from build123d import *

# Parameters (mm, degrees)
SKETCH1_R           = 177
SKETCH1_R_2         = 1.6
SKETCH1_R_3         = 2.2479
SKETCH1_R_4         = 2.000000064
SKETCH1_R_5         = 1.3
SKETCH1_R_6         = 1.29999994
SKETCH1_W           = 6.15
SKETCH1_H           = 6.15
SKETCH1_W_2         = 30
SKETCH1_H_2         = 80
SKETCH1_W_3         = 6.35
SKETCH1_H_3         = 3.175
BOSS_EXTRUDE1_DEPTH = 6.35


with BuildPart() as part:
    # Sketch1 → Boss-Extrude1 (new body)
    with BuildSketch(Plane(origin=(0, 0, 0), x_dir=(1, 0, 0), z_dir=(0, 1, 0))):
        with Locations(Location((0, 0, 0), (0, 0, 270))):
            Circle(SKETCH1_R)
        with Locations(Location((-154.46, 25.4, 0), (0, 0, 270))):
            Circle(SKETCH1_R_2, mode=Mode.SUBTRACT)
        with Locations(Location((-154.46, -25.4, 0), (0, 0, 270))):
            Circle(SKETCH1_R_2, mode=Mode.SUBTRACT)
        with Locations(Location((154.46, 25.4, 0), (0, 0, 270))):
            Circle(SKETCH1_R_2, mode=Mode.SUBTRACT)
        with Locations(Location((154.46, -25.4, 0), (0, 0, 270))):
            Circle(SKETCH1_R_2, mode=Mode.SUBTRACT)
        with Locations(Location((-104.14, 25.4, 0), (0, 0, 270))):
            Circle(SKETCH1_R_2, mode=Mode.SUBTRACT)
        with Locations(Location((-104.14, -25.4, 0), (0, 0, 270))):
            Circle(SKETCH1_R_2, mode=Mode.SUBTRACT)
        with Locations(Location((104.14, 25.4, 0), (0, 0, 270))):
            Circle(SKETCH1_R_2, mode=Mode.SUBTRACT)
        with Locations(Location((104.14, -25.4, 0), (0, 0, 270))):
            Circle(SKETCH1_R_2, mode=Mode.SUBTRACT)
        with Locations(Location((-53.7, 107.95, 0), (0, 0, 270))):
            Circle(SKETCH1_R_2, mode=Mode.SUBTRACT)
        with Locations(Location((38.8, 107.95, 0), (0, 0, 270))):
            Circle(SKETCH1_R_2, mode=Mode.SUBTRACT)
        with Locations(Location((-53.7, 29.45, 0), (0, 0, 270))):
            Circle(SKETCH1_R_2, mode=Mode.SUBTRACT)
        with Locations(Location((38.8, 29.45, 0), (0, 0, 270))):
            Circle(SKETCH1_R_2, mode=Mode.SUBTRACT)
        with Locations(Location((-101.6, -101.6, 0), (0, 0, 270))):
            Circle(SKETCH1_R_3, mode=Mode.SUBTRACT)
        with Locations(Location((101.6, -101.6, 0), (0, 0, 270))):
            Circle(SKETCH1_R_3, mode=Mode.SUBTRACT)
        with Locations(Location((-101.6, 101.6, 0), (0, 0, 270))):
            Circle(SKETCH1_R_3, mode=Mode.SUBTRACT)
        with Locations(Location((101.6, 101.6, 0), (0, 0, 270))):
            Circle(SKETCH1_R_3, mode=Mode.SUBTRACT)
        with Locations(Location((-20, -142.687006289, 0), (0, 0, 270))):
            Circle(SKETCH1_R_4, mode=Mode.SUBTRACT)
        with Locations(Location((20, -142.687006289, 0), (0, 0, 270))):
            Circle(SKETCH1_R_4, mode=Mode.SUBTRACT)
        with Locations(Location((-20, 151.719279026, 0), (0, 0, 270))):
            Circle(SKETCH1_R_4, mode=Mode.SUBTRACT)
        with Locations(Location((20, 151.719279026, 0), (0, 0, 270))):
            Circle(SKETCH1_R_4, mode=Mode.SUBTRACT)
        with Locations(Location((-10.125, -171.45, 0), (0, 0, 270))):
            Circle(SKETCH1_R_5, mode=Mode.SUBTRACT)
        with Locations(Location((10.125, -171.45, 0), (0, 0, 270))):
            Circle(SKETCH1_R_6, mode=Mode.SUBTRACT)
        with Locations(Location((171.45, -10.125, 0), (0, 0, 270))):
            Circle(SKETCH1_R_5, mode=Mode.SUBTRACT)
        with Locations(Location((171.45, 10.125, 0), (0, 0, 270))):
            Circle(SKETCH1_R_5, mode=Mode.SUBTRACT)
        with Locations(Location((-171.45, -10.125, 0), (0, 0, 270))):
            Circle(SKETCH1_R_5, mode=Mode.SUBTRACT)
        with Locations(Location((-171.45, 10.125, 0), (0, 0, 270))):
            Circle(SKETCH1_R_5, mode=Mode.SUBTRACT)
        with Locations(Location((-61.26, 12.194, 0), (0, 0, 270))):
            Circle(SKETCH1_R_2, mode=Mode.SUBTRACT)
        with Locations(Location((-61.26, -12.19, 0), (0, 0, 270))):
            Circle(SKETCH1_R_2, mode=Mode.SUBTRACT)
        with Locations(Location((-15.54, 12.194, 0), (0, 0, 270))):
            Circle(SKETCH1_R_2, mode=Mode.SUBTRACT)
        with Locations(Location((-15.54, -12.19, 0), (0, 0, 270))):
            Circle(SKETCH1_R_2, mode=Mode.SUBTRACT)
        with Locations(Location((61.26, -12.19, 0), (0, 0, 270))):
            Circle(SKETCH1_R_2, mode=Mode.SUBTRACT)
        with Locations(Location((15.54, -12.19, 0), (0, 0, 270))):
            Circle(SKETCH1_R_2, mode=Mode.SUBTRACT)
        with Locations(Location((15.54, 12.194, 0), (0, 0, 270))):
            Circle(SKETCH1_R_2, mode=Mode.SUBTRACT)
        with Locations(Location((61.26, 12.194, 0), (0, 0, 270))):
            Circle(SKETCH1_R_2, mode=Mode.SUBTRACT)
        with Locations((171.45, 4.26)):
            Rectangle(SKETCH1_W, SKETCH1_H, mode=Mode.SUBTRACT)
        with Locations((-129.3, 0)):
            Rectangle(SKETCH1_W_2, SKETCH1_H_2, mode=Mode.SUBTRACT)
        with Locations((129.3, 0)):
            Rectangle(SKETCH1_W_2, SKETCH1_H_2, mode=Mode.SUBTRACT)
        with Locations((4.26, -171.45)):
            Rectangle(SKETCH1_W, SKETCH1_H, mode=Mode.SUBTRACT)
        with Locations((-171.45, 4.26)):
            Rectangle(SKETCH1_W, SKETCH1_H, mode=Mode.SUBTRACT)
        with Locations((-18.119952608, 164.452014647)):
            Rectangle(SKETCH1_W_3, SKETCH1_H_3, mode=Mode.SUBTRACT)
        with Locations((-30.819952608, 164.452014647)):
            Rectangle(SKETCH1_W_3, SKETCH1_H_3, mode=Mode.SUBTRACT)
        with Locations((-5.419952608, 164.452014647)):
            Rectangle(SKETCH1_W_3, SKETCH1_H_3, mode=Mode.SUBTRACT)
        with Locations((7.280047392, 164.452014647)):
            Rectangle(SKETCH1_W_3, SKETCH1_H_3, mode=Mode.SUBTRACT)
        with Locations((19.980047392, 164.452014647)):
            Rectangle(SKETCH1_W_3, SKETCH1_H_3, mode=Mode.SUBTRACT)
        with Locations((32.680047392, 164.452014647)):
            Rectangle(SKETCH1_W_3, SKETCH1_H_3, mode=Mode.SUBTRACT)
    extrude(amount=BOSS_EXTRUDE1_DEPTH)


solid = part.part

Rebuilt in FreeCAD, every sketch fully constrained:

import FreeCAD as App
import Part
import Sketcher

V = App.Vector


def add_polygon(sketch, points):
    """Adds a closed chain of lines whose ends are joined by coincident constraints."""
    first, n = sketch.GeometryCount, len(points)
    for a, b in zip(points, points[1:] + points[:1]):
        sketch.addGeometry(Part.LineSegment(App.Vector(*a, 0), App.Vector(*b, 0)), False)
    for i in range(n):
        sketch.addConstraint(Sketcher.Constraint("Coincident", first + i, 2, first + (i + 1) % n, 1))

doc = App.newDocument("Part")
body = doc.addObject("PartDesign::Body", "Body")

# Sketch on XZ plane
sketch1 = body.newObject("Sketcher::SketchObject", "Sketch")
sketch1.AttachmentSupport = (doc.getObject("XZ_Plane"), [""])
sketch1.MapMode = "FlatFace"
sketch1.addGeometry(Part.Circle(V(0, 0, 0), V(0, 0, 1), 177), False)  # 0
sketch1.addGeometry(Part.Circle(V(-101.6, -101.6, 0), V(0, 0, 1), 2.2), False)  # 1
sketch1.addGeometry(Part.Circle(V(-154.5, -25.4, 0), V(0, 0, 1), 1.6), False)  # 2
sketch1.addGeometry(Part.Circle(V(-171.4, -10.1, 0), V(0, 0, 1), 1.3), False)  # 3
add_polygon(sketch1, [(-168.4, -1.2), (-174.5, -1.2), (-174.5, -7.3), (-168.4, -7.3)])  # lines 4-7
add_polygon(sketch1, [(-114.3, 40), (-144.3, 40), (-144.3, -40), (-114.3, -40)])  # lines 8-11
sketch1.addGeometry(Part.Circle(V(-104.1, -25.4, 0), V(0, 0, 1), 1.6), False)  # 12
sketch1.addGeometry(Part.Circle(V(-53.7, -108, 0), V(0, 0, 1), 1.6), False)  # 13
add_polygon(sketch1, [(-27.6, -162.9), (-34, -162.9), (-34, -166), (-27.6, -166)])  # lines 14-17
add_polygon(sketch1, [(-14.9, -162.9), (-21.3, -162.9), (-21.3, -166), (-14.9, -166)])  # lines 18-21
sketch1.addGeometry(Part.Circle(V(-20, -151.7, 0), V(0, 0, 1), 2), False)  # 22
add_polygon(sketch1, [(-2.2, -162.9), (-8.6, -162.9), (-8.6, -166), (-2.2, -166)])  # lines 23-26
sketch1.addGeometry(Part.Circle(V(-53.7, -29.4, 0), V(0, 0, 1), 1.6), False)  # 27
sketch1.addGeometry(Part.Circle(V(-61.3, -12.2, 0), V(0, 0, 1), 1.6), False)  # 28
sketch1.addGeometry(Part.Circle(V(-15.5, -12.2, 0), V(0, 0, 1), 1.6), False)  # 29
sketch1.addGeometry(Part.Circle(V(-171.4, 10.1, 0), V(0, 0, 1), 1.3), False)  # 30
sketch1.addGeometry(Part.Circle(V(-154.5, 25.4, 0), V(0, 0, 1), 1.6), False)  # 31
sketch1.addGeometry(Part.Circle(V(-104.1, 25.4, 0), V(0, 0, 1), 1.6), False)  # 32
sketch1.addGeometry(Part.Circle(V(-101.6, 101.6, 0), V(0, 0, 1), 2.2), False)  # 33
sketch1.addGeometry(Part.Circle(V(-61.3, 12.2, 0), V(0, 0, 1), 1.6), False)  # 34
sketch1.addGeometry(Part.Circle(V(-15.5, 12.2, 0), V(0, 0, 1), 1.6), False)  # 35
sketch1.addGeometry(Part.Circle(V(-20, 142.7, 0), V(0, 0, 1), 2), False)  # 36
sketch1.addGeometry(Part.Circle(V(-10.1, 171.4, 0), V(0, 0, 1), 1.3), False)  # 37
add_polygon(sketch1, [(10.5, -162.9), (4.1, -162.9), (4.1, -166), (10.5, -166)])  # lines 38-41
add_polygon(sketch1, [(23.2, -162.9), (16.8, -162.9), (16.8, -166), (23.2, -166)])  # lines 42-45
sketch1.addGeometry(Part.Circle(V(20, -151.7, 0), V(0, 0, 1), 2), False)  # 46
add_polygon(sketch1, [(35.9, -162.9), (29.5, -162.9), (29.5, -166), (35.9, -166)])  # lines 47-50
sketch1.addGeometry(Part.Circle(V(38.8, -108, 0), V(0, 0, 1), 1.6), False)  # 51
sketch1.addGeometry(Part.Circle(V(15.5, -12.2, 0), V(0, 0, 1), 1.6), False)  # 52
sketch1.addGeometry(Part.Circle(V(38.8, -29.4, 0), V(0, 0, 1), 1.6), False)  # 53
sketch1.addGeometry(Part.Circle(V(61.3, -12.2, 0), V(0, 0, 1), 1.6), False)  # 54
sketch1.addGeometry(Part.Circle(V(101.6, -101.6, 0), V(0, 0, 1), 2.2), False)  # 55
sketch1.addGeometry(Part.Circle(V(104.1, -25.4, 0), V(0, 0, 1), 1.6), False)  # 56
add_polygon(sketch1, [(144.3, 40), (114.3, 40), (114.3, -40), (144.3, -40)])  # lines 57-60
sketch1.addGeometry(Part.Circle(V(154.5, -25.4, 0), V(0, 0, 1), 1.6), False)  # 61
sketch1.addGeometry(Part.Circle(V(171.4, -10.1, 0), V(0, 0, 1), 1.3), False)  # 62
add_polygon(sketch1, [(174.5, -1.2), (168.4, -1.2), (168.4, -7.3), (174.5, -7.3)])  # lines 63-66
sketch1.addGeometry(Part.Circle(V(15.5, 12.2, 0), V(0, 0, 1), 1.6), False)  # 67
sketch1.addGeometry(Part.Circle(V(61.3, 12.2, 0), V(0, 0, 1), 1.6), False)  # 68
sketch1.addGeometry(Part.Circle(V(20, 142.7, 0), V(0, 0, 1), 2), False)  # 69
add_polygon(sketch1, [(7.3, 174.5), (1.2, 174.5), (1.2, 168.4), (7.3, 168.4)])  # lines 70-73
sketch1.addGeometry(Part.Circle(V(10.1, 171.4, 0), V(0, 0, 1), 1.3), False)  # 74
sketch1.addGeometry(Part.Circle(V(104.1, 25.4, 0), V(0, 0, 1), 1.6), False)  # 75
sketch1.addGeometry(Part.Circle(V(154.5, 25.4, 0), V(0, 0, 1), 1.6), False)  # 76
sketch1.addGeometry(Part.Circle(V(171.4, 10.1, 0), V(0, 0, 1), 1.3), False)  # 77
sketch1.addGeometry(Part.Circle(V(101.6, 101.6, 0), V(0, 0, 1), 2.2), False)  # 78
sketch1.addConstraint([
    Sketcher.Constraint("Horizontal", 4),
    Sketcher.Constraint("Vertical", 5),
    Sketcher.Constraint("Horizontal", 6),
    Sketcher.Constraint("Vertical", 7),
    Sketcher.Constraint("Horizontal", 8),
    Sketcher.Constraint("Vertical", 9),
    Sketcher.Constraint("Horizontal", 10),
    Sketcher.Constraint("Vertical", 11),
    Sketcher.Constraint("Horizontal", 14),
    Sketcher.Constraint("Vertical", 15),
    Sketcher.Constraint("Horizontal", 16),
    Sketcher.Constraint("Vertical", 17),
    Sketcher.Constraint("Horizontal", 18),
    Sketcher.Constraint("Vertical", 19),
    Sketcher.Constraint("Horizontal", 20),
    Sketcher.Constraint("Vertical", 21),
    Sketcher.Constraint("Horizontal", 23),
    Sketcher.Constraint("Vertical", 24),
    Sketcher.Constraint("Horizontal", 25),
    Sketcher.Constraint("Vertical", 26),
    Sketcher.Constraint("Horizontal", 38),
    Sketcher.Constraint("Vertical", 39),
    Sketcher.Constraint("Horizontal", 40),
    Sketcher.Constraint("Vertical", 41),
    Sketcher.Constraint("Horizontal", 42),
    Sketcher.Constraint("Vertical", 43),
    Sketcher.Constraint("Horizontal", 44),
    Sketcher.Constraint("Vertical", 45),
    Sketcher.Constraint("Horizontal", 47),
    Sketcher.Constraint("Vertical", 48),
    Sketcher.Constraint("Horizontal", 49),
    Sketcher.Constraint("Vertical", 50),
    Sketcher.Constraint("Horizontal", 57),
    Sketcher.Constraint("Vertical", 58),
    Sketcher.Constraint("Horizontal", 59),
    Sketcher.Constraint("Vertical", 60),
    Sketcher.Constraint("Horizontal", 63),
    Sketcher.Constraint("Vertical", 64),
    Sketcher.Constraint("Horizontal", 65),
    Sketcher.Constraint("Vertical", 66),
    Sketcher.Constraint("Horizontal", 70),
    Sketcher.Constraint("Vertical", 71),
    Sketcher.Constraint("Horizontal", 72),
    Sketcher.Constraint("Vertical", 73),
    Sketcher.Constraint("Coincident", 0, 3, -1, 1),
    Sketcher.Constraint("Equal", 2, 12),
    Sketcher.Constraint("Equal", 12, 13),
    Sketcher.Constraint("Equal", 13, 27),
    Sketcher.Constraint("Equal", 27, 28),
    Sketcher.Constraint("Equal", 28, 29),
    Sketcher.Constraint("Equal", 3, 30),
    Sketcher.Constraint("Equal", 29, 31),
    Sketcher.Constraint("Equal", 31, 32),
    Sketcher.Constraint("Equal", 1, 33),
    Sketcher.Constraint("Equal", 32, 34),
    Sketcher.Constraint("Equal", 34, 35),
    Sketcher.Constraint("Equal", 22, 36),
    Sketcher.Constraint("Equal", 30, 37),
    Sketcher.Constraint("Equal", 36, 46),
    Sketcher.Constraint("Equal", 35, 51),
    Sketcher.Constraint("Equal", 51, 52),
    Sketcher.Constraint("Equal", 52, 53),
    Sketcher.Constraint("Equal", 53, 54),
    Sketcher.Constraint("Equal", 33, 55),
    Sketcher.Constraint("Equal", 54, 56),
    Sketcher.Constraint("Equal", 56, 61),
    Sketcher.Constraint("Equal", 37, 62),
    Sketcher.Constraint("Equal", 61, 67),
    Sketcher.Constraint("Equal", 67, 68),
    Sketcher.Constraint("Equal", 46, 69),
    Sketcher.Constraint("Equal", 62, 74),
    Sketcher.Constraint("Equal", 68, 75),
    Sketcher.Constraint("Equal", 75, 76),
    Sketcher.Constraint("Equal", 74, 77),
    Sketcher.Constraint("Equal", 55, 78),
    Sketcher.Constraint("Symmetric", 33, 3, 55, 3, -1, 1),
    Sketcher.Constraint("Symmetric", 32, 3, 56, 3, -1, 1),
    Sketcher.Constraint("Symmetric", 31, 3, 61, 3, -1, 1),
    Sketcher.Constraint("Symmetric", 30, 3, 62, 3, -1, 1),
    Sketcher.Constraint("Symmetric", 12, 3, 75, 3, -1, 1),
    Sketcher.Constraint("Symmetric", 2, 3, 76, 3, -1, 1),
    Sketcher.Constraint("Symmetric", 3, 3, 77, 3, -1, 1),
    Sketcher.Constraint("Symmetric", 1, 3, 78, 3, -1, 1),
    Sketcher.Constraint("Symmetric", 10, 2, 57, 2, -1, 1),
    Sketcher.Constraint("Symmetric", 8, 2, 59, 2, -1, 1),
    Sketcher.Constraint("Symmetric", 22, 3, 46, 3, -2),
    Sketcher.Constraint("Symmetric", 29, 3, 52, 3, -2),
    Sketcher.Constraint("Symmetric", 28, 3, 54, 3, -2),
    Sketcher.Constraint("Symmetric", 1, 3, 55, 3, -2),
    Sketcher.Constraint("Symmetric", 12, 3, 56, 3, -2),
    Sketcher.Constraint("Symmetric", 2, 3, 61, 3, -2),
    Sketcher.Constraint("Symmetric", 3, 3, 62, 3, -2),
    Sketcher.Constraint("Symmetric", 35, 3, 67, 3, -2),
    Sketcher.Constraint("Symmetric", 34, 3, 68, 3, -2),
    Sketcher.Constraint("Symmetric", 36, 3, 69, 3, -2),
    Sketcher.Constraint("Symmetric", 37, 3, 74, 3, -2),
    Sketcher.Constraint("Symmetric", 7, 2, 63, 2, -2),
    Sketcher.Constraint("Symmetric", 5, 2, 65, 2, -2),
    Sketcher.Constraint("Horizontal", 2, 3, 12, 3),
    Sketcher.Constraint("Horizontal", 28, 3, 29, 3),
    Sketcher.Constraint("Horizontal", 34, 3, 35, 3),
    Sketcher.Constraint("Horizontal", 13, 3, 51, 3),
    Sketcher.Constraint("Horizontal", 27, 3, 53, 3),
    Sketcher.Constraint("Horizontal", 17, 2, 18, 2),
    Sketcher.Constraint("Horizontal", 16, 2, 19, 2),
    Sketcher.Constraint("Horizontal", 21, 2, 23, 2),
    Sketcher.Constraint("Horizontal", 20, 2, 24, 2),
    Sketcher.Constraint("Horizontal", 26, 2, 38, 2),
    Sketcher.Constraint("Horizontal", 25, 2, 39, 2),
    Sketcher.Constraint("Horizontal", 41, 2, 42, 2),
    Sketcher.Constraint("Horizontal", 40, 2, 43, 2),
    Sketcher.Constraint("Horizontal", 45, 2, 47, 2),
    Sketcher.Constraint("Horizontal", 44, 2, 48, 2),
    Sketcher.Constraint("Horizontal", 11, 2, 57, 2),
    Sketcher.Constraint("Vertical", 13, 3, 27, 3),
    Sketcher.Constraint("Vertical", 28, 3, 34, 3),
    Sketcher.Constraint("Vertical", 29, 3, 35, 3),
    Sketcher.Constraint("Vertical", 22, 3, 36, 3),
    Sketcher.Constraint("Vertical", 51, 3, 53, 3),
    Sketcher.Constraint("Equal", 16, 18),
    Sketcher.Constraint("Equal", 20, 23),
    Sketcher.Constraint("Equal", 25, 38),
    Sketcher.Constraint("Equal", 40, 42),
    Sketcher.Constraint("Equal", 44, 47),
    Sketcher.Constraint("Equal", 65, 70),
    Sketcher.Constraint("Equal", 72, 5),
    Sketcher.Constraint("Equal", 66, 71),
    Sketcher.Constraint("Diameter", 0, 354.0),
    Sketcher.Constraint("Diameter", 22, 4.0),
    Sketcher.Constraint("Diameter", 2, 3.2),
    Sketcher.Constraint("Diameter", 3, 2.6),
    Sketcher.Constraint("DistanceX", 8, 2, 8, 1, 30.0),
    Sketcher.Constraint("DistanceY", 9, 2, 9, 1, 80.0),
    Sketcher.Constraint("DistanceX", 22, 3, -1, 1, 20.0),
    Sketcher.Constraint("Diameter", 1, 4.4958),
    Sketcher.Constraint("DistanceX", 4, 2, 4, 1, 6.15),
    Sketcher.Constraint("DistanceX", 14, 2, 14, 1, 6.35),
    Sketcher.Constraint("DistanceX", 1, 3, -1, 1, 101.6),
    Sketcher.Constraint("DistanceY", 1, 3, -1, 1, 101.6),
    Sketcher.Constraint("DistanceY", 2, 3, -1, 1, 25.4),
    Sketcher.Constraint("DistanceX", 13, 3, -1, 1, 53.7),
    Sketcher.Constraint("DistanceX", -1, 1, 51, 3, 38.8),
    Sketcher.Constraint("DistanceX", 8, 2, -1, 1, 144.3),
    Sketcher.Constraint("DistanceY", 15, 2, 15, 1, 3.175),
    Sketcher.Constraint("DistanceX", 2, 3, -1, 1, 154.46),
    Sketcher.Constraint("DistanceX", 3, 3, -1, 1, 171.45),
    Sketcher.Constraint("DistanceX", 12, 3, -1, 1, 104.14),
    Sketcher.Constraint("DistanceY", 13, 3, -1, 1, 107.95),
    Sketcher.Constraint("DistanceY", 27, 3, -1, 1, 29.45),
    Sketcher.Constraint("DistanceX", 28, 3, -1, 1, 61.26),
    Sketcher.Constraint("DistanceX", 29, 3, -1, 1, 15.54),
    Sketcher.Constraint("DistanceY", -1, 1, 34, 3, 12.19),
    Sketcher.Constraint("DistanceY", -1, 1, 37, 3, 171.45),
    Sketcher.Constraint("DistanceY", 3, 3, -1, 1, 10.125),
    Sketcher.Constraint("DistanceY", 28, 3, -1, 1, 12.194),
    Sketcher.Constraint("DistanceX", 37, 3, -1, 1, 10.125),
    Sketcher.Constraint("DistanceX", 4, 2, -1, 1, 174.525),
    Sketcher.Constraint("DistanceY", 4, 2, -1, 1, 1.185),
    Sketcher.Constraint("DistanceX", -1, 1, 70, 2, 1.185),
    Sketcher.Constraint("DistanceY", -1, 1, 70, 2, 174.525),
    Sketcher.Constraint("DistanceY", 22, 3, -1, 1, 151.719279),
    Sketcher.Constraint("DistanceY", -1, 1, 36, 3, 142.687006),
    Sketcher.Constraint("DistanceX", 14, 2, -1, 1, 33.994953),
    Sketcher.Constraint("DistanceY", 14, 2, -1, 1, 162.864515),
    Sketcher.Constraint("DistanceX", 18, 2, -1, 1, 21.294953),
    Sketcher.Constraint("DistanceX", 23, 2, -1, 1, 8.594953),
    Sketcher.Constraint("DistanceX", -1, 1, 38, 2, 4.105047),
    Sketcher.Constraint("DistanceX", -1, 1, 42, 2, 16.805047),
    Sketcher.Constraint("DistanceX", -1, 1, 47, 2, 29.505047),
])
pad1 = body.newObject("PartDesign::Pad", "Pad")
pad1.Profile = sketch1
pad1.Length = 6.35
pad1.Reversed = True

doc.recompute()
